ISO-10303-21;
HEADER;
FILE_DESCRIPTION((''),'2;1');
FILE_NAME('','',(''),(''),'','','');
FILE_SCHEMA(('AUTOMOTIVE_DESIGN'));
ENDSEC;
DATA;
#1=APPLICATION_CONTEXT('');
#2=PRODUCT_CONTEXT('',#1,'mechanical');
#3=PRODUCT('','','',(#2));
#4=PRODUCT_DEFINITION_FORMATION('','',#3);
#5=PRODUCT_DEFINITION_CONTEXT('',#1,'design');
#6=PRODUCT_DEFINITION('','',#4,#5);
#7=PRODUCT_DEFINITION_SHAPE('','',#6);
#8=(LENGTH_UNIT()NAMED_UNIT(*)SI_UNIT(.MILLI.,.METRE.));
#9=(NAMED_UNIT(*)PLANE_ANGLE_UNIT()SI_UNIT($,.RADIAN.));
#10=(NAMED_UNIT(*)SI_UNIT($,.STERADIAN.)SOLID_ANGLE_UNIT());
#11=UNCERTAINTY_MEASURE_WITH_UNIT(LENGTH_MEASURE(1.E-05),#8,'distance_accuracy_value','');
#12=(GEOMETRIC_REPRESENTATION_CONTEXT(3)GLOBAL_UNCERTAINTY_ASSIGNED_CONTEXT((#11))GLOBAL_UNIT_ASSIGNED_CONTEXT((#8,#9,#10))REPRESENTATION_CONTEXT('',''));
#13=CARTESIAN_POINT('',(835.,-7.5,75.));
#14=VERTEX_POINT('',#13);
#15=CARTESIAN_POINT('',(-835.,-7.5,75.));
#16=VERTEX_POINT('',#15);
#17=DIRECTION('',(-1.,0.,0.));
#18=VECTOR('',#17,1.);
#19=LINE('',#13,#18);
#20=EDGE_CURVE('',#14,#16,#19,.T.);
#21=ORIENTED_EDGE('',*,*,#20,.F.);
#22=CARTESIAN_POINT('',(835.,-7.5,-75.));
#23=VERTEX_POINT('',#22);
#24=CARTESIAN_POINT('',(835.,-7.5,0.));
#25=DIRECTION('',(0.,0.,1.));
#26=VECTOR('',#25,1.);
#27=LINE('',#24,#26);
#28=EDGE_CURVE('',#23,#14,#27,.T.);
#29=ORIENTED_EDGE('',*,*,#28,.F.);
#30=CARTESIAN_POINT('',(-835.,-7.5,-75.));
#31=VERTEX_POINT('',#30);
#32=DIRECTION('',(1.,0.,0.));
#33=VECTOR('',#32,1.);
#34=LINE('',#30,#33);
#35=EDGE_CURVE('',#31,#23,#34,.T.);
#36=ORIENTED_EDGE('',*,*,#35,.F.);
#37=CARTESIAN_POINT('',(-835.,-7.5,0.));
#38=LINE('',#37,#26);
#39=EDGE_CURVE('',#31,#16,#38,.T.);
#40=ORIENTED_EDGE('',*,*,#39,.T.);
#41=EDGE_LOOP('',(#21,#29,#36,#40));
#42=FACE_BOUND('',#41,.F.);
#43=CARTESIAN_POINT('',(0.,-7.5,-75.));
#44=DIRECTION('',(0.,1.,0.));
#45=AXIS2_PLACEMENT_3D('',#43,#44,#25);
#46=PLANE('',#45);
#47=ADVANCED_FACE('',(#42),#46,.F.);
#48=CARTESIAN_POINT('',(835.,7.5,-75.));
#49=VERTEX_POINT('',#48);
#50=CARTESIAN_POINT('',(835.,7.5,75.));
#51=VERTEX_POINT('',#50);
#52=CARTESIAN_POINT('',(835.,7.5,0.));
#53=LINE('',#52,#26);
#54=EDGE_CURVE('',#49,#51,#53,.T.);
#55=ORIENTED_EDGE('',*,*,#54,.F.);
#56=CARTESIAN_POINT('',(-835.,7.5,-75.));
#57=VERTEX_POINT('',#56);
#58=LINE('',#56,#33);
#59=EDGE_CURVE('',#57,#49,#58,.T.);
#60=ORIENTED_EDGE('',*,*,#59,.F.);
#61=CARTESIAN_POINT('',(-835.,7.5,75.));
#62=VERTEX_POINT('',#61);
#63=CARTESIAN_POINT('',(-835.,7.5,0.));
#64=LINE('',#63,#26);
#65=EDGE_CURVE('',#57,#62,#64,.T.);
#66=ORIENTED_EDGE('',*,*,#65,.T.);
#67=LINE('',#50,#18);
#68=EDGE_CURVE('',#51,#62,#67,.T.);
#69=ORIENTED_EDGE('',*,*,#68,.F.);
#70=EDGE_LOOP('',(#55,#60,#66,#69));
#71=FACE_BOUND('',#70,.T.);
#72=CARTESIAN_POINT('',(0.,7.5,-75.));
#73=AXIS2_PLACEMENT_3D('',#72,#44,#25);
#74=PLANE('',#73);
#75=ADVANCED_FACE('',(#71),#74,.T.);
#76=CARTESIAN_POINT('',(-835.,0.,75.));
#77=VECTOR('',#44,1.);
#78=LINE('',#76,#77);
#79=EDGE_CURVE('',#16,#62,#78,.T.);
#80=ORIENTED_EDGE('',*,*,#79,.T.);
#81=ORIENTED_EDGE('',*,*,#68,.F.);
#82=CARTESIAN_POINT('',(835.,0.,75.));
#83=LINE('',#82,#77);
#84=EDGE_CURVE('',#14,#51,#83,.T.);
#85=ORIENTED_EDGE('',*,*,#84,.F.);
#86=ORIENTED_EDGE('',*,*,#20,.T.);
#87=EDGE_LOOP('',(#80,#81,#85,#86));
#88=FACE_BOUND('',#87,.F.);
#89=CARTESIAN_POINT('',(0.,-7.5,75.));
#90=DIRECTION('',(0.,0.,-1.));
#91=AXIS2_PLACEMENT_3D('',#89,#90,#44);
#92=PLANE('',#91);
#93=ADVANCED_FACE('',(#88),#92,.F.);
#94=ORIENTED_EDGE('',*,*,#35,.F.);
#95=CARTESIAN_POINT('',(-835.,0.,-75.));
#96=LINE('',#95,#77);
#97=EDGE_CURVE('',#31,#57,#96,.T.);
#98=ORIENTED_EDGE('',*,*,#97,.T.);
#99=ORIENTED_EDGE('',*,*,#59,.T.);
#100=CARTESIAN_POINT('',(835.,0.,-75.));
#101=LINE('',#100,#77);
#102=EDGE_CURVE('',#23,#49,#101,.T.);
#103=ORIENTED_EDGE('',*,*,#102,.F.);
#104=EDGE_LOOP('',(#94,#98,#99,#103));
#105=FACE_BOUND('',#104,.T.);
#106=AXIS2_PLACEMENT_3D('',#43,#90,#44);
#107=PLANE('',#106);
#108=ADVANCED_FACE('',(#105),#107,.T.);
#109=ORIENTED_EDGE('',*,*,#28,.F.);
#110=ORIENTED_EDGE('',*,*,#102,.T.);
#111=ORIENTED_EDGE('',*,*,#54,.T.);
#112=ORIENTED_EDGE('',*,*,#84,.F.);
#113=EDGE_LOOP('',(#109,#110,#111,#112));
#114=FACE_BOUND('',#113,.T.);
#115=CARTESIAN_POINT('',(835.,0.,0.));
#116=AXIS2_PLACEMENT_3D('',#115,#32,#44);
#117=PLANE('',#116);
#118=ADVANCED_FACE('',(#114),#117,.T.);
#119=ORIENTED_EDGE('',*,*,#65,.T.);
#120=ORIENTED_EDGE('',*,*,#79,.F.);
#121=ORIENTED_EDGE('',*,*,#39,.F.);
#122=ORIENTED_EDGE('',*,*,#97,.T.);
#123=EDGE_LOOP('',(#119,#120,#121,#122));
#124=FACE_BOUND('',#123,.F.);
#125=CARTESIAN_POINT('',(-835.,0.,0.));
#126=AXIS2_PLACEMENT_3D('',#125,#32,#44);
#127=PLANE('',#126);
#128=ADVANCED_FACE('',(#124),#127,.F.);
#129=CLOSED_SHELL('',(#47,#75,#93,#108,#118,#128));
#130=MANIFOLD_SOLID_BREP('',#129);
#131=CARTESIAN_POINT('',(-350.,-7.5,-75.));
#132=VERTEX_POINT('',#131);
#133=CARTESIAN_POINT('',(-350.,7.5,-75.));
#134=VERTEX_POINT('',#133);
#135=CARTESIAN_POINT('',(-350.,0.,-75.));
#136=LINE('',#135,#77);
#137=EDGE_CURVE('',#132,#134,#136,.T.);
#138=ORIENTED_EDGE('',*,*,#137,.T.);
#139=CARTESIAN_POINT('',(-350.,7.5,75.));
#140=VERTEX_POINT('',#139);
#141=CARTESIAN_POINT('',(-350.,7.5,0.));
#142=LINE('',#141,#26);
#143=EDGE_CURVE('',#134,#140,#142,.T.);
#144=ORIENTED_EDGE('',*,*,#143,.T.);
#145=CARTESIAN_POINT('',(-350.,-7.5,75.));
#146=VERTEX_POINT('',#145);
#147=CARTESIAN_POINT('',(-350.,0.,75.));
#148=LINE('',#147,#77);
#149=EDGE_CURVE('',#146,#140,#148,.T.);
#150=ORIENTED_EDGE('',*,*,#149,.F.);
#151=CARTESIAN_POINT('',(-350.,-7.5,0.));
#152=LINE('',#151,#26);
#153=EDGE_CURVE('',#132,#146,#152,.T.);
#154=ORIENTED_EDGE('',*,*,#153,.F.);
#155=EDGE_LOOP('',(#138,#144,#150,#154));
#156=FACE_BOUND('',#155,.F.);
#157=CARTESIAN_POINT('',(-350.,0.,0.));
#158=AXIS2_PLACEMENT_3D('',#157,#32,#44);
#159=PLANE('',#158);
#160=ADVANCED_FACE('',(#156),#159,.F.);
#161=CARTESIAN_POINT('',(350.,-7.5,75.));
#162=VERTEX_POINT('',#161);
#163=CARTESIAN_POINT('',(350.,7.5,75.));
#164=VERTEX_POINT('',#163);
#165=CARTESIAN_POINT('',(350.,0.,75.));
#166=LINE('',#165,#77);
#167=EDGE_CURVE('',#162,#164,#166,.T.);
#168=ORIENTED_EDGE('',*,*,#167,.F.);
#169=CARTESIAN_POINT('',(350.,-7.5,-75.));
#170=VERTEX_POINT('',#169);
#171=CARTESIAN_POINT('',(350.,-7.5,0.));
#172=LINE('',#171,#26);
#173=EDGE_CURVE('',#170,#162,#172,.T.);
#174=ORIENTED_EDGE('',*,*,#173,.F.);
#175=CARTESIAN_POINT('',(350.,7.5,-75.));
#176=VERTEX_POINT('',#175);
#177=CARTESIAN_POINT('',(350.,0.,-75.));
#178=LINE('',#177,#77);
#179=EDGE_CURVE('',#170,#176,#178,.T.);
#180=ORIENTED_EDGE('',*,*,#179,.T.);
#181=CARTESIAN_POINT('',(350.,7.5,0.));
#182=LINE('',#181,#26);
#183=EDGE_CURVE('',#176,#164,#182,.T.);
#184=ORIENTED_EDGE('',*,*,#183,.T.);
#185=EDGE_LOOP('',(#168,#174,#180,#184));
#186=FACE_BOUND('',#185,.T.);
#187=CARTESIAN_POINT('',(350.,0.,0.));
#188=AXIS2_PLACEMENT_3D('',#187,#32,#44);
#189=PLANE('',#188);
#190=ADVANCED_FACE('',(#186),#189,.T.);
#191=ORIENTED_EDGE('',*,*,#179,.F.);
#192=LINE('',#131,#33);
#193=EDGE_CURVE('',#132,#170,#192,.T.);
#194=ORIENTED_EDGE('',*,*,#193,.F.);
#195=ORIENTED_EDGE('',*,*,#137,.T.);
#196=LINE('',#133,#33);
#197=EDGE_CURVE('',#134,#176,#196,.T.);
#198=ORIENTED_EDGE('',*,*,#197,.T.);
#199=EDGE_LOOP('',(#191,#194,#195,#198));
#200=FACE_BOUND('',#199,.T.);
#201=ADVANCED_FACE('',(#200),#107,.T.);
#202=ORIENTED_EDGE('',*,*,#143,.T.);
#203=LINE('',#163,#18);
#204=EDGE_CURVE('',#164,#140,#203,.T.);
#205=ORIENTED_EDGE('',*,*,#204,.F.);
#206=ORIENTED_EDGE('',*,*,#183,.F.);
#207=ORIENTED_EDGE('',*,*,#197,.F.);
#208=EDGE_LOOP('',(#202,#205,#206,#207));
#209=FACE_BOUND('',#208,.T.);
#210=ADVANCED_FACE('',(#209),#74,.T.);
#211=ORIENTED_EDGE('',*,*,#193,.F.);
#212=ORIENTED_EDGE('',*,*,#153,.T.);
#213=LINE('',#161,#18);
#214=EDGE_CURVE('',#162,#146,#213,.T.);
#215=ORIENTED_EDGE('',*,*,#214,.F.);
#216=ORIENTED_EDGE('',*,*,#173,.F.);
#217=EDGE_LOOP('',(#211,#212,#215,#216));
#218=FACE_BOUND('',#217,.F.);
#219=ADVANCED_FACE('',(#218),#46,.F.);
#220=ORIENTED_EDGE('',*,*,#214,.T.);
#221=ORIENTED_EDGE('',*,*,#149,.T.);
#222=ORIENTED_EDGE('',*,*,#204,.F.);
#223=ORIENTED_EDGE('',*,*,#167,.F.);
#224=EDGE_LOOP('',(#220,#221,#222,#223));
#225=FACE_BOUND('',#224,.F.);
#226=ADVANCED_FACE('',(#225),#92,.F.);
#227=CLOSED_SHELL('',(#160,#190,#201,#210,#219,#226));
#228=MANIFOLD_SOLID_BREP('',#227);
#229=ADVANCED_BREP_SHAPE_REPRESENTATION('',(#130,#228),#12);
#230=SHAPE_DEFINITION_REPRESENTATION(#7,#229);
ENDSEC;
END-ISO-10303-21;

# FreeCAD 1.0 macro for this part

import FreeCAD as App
import Part
import Sketcher
Q = App.Units.Quantity


def add_polygon(sketch, points):
    """Adds a closed chain of lines whose ends are joined by coincident constraints."""
    first, n = sketch.GeometryCount, len(points)
    for a, b in zip(points, points[1:] + points[:1]):
        sketch.addGeometry(Part.LineSegment(App.Vector(*a, 0), App.Vector(*b, 0)), False)
    for i in range(n):
        sketch.addConstraint(Sketcher.Constraint("Coincident", first + i, 2, first + (i + 1) % n, 1))

doc = App.newDocument("Part")
body = doc.addObject("PartDesign::Body", "Body")

# Sketch on YZ plane
sketch1 = body.newObject("Sketcher::SketchObject", "Sketch")
sketch1.AttachmentSupport = (doc.getObject("YZ_Plane"), [""])
sketch1.MapMode = "FlatFace"
add_polygon(sketch1, [(-8, 75), (-8, -75), (8, -75), (8, 75)])  # lines 0-3
sketch1.addConstraint([
    Sketcher.Constraint("Vertical", 0),
    Sketcher.Constraint("Horizontal", 1),
    Sketcher.Constraint("Vertical", 2),
    Sketcher.Constraint("Horizontal", 3),
    Sketcher.Constraint("Symmetric", 0, 2, 2, 2, -1, 1),
    Sketcher.Constraint("DistanceX", 1, 1, 1, 2, Q("15 mm")),
    Sketcher.Constraint("DistanceY", 0, 2, 0, 1, Q("150 mm")),
])
pad1 = body.newObject("PartDesign::Pad", "Pad")
pad1.Profile = sketch1
pad1.Length = 1670
pad1.Midplane = True
body2 = doc.addObject("PartDesign::Body", "Body001")

# Sketch on YZ plane
sketch2 = body2.newObject("Sketcher::SketchObject", "Sketch001")
sketch2.AttachmentSupport = (doc.getObject("YZ_Plane001"), [""])
sketch2.MapMode = "FlatFace"
add_polygon(sketch2, [(-8, 75), (-8, -75), (8, -75), (8, 75)])  # lines 0-3
sketch2.addConstraint([
    Sketcher.Constraint("Vertical", 0),
    Sketcher.Constraint("Horizontal", 1),
    Sketcher.Constraint("Vertical", 2),
    Sketcher.Constraint("Horizontal", 3),
    Sketcher.Constraint("Symmetric", 0, 2, 2, 2, -1, 1),
    Sketcher.Constraint("DistanceX", 1, 1, 1, 2, Q("15 mm")),
    Sketcher.Constraint("DistanceY", 0, 2, 0, 1, Q("150 mm")),
])
pad2 = body2.newObject("PartDesign::Pad", "Pad001")
pad2.Profile = sketch2
pad2.Length = 700
pad2.Midplane = True

doc.recompute()
